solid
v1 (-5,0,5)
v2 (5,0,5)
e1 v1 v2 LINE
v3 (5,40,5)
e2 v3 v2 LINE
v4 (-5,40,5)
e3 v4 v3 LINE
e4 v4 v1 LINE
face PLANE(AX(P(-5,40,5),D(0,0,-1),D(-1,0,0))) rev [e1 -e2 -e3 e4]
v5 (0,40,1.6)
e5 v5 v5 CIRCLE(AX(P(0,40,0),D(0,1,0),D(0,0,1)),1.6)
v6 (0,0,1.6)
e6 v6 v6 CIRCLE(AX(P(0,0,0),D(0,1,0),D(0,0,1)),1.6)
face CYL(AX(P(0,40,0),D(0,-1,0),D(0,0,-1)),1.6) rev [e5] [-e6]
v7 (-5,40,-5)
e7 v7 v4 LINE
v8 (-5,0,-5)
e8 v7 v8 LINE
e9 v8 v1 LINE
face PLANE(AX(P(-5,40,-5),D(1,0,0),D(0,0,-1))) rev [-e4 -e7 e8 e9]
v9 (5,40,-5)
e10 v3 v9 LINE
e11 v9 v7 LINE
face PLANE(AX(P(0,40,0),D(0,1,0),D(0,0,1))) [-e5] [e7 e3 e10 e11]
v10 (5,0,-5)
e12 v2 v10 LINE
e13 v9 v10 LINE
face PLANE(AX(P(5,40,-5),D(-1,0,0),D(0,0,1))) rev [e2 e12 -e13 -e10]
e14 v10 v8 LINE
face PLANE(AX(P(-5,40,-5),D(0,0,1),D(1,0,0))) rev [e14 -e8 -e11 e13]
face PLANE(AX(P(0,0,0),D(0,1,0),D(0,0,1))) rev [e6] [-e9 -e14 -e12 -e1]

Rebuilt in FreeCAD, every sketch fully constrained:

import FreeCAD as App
import Part
import Sketcher
from FreeCAD import Vector

doc = App.newDocument("Part")
body = doc.addObject("PartDesign::Body", "Body")

# Sketch on XZ plane
sketch1 = doc.addObject("Sketcher::SketchObject", "Sketch")
body.addObject(sketch1)
sketch1.AttachmentSupport = (doc.XZ_Plane, [""])
sketch1.MapMode = "FlatFace"
sketch1.addGeometry([
    Part.LineSegment(Vector(-5, -5, 0), Vector(-5, 5, 0)),  # 0
    Part.LineSegment(Vector(-5, 5, 0), Vector(5, 5, 0)),  # 1
    Part.LineSegment(Vector(5, 5, 0), Vector(5, -5, 0)),  # 2
    Part.LineSegment(Vector(5, -5, 0), Vector(-5, -5, 0)),  # 3
    Part.Circle(Vector(0, 0, 0), Vector(0, 0, 1), 1.6),  # 4
], False)
sketch1.addConstraint([
    Sketcher.Constraint("Coincident", 0, 2, 1, 1),
    Sketcher.Constraint("Coincident", 1, 2, 2, 1),
    Sketcher.Constraint("Coincident", 2, 2, 3, 1),
    Sketcher.Constraint("Coincident", 3, 2, 0, 1),
    Sketcher.Constraint("Vertical", 0),
    Sketcher.Constraint("Horizontal", 1),
    Sketcher.Constraint("Vertical", 2),
    Sketcher.Constraint("Horizontal", 3),
    Sketcher.Constraint("Coincident", 4, 3, -1, 1),
    Sketcher.Constraint("Symmetric", 0, 2, 2, 2, -1, 1),
    Sketcher.Constraint("Equal", 3, 0),
    Sketcher.Constraint("Diameter", 4, 3.2),
    Sketcher.Constraint("DistanceX", 1, 1, 1, 2, 10.0),
])
pad1 = doc.addObject("PartDesign::Pad", "Pad")
body.addObject(pad1)
pad1.Profile = sketch1
pad1.Length = 40
pad1.Reversed = True

doc.recompute()
